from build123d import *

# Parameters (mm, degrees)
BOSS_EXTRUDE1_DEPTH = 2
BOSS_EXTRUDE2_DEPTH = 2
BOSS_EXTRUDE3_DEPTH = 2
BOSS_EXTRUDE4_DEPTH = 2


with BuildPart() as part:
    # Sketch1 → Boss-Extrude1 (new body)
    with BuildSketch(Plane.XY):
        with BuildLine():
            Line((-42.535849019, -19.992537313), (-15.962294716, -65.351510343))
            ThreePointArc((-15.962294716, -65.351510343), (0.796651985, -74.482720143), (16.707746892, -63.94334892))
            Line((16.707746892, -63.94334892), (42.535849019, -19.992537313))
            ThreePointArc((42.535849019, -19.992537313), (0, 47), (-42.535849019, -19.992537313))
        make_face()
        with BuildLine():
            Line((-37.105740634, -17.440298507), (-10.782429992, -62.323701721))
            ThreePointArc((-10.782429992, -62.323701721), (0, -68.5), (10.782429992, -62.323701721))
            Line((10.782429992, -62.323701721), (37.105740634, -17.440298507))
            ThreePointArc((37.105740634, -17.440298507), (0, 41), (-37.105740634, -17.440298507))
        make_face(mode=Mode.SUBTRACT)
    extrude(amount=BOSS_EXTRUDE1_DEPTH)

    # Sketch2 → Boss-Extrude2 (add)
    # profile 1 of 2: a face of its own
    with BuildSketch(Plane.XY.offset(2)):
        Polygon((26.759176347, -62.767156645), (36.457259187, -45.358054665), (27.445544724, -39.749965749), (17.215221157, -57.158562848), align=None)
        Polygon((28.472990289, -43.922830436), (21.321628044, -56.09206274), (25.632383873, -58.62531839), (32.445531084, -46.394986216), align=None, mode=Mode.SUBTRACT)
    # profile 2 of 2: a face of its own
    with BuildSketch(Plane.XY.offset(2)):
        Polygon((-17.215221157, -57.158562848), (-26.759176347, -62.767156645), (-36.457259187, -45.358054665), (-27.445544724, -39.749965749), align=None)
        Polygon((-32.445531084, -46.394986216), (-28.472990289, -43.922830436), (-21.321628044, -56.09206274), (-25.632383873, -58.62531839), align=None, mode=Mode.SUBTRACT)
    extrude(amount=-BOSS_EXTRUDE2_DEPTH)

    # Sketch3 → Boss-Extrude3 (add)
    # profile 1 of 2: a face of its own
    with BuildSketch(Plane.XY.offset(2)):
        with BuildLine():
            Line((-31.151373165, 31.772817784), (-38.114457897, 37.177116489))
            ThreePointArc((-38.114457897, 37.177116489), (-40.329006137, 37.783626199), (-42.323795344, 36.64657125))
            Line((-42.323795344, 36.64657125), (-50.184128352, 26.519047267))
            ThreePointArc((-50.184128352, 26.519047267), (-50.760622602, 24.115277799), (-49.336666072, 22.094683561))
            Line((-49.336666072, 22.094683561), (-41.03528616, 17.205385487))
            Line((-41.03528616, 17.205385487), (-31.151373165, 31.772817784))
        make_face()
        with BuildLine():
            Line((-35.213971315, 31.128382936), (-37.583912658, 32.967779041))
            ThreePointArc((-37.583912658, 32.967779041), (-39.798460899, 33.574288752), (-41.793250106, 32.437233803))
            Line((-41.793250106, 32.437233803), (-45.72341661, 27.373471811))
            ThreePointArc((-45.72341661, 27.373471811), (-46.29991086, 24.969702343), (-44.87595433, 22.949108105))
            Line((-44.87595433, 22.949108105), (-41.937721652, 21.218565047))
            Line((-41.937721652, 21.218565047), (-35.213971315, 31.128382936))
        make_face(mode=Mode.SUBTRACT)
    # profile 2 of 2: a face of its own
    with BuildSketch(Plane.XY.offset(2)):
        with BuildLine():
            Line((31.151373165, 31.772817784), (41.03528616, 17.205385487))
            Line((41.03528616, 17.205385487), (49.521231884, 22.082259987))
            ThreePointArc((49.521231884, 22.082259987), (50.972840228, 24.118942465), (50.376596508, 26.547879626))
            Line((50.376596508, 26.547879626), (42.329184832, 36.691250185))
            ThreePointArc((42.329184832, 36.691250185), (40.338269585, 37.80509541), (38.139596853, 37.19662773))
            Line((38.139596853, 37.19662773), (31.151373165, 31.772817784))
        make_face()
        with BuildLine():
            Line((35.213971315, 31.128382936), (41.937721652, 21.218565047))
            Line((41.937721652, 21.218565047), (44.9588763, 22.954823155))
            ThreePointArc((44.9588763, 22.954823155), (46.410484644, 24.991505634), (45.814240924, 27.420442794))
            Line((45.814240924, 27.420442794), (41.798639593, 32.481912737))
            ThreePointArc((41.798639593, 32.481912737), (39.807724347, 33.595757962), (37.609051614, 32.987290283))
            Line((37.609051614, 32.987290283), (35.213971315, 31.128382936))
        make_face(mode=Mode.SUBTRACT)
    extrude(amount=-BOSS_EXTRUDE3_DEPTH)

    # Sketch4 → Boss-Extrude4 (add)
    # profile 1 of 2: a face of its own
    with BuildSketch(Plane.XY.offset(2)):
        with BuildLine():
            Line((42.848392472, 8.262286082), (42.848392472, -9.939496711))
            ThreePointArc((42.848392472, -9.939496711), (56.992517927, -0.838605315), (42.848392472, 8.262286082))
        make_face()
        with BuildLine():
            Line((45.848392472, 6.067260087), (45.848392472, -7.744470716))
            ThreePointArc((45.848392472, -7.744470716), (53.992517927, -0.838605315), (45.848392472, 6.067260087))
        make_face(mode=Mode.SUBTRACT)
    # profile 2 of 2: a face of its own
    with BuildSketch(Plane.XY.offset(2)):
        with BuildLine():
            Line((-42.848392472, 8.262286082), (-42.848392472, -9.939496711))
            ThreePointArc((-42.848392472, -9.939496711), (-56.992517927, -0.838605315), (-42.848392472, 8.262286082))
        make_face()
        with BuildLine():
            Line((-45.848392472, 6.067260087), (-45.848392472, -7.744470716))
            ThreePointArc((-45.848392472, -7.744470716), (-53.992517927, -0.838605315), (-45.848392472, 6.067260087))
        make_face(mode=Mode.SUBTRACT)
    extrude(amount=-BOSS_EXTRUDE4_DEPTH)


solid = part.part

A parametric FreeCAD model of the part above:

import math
import FreeCAD as App
import Part
import Sketcher
from FreeCAD import Vector
Q = App.Units.Quantity

doc = App.newDocument("Part")
body = doc.addObject("PartDesign::Body", "Body")

# Sketch on XY plane
sketch1 = doc.addObject("Sketcher::SketchObject", "Sketch")
body.addObject(sketch1)
sketch1.AttachmentSupport = (doc.XY_Plane, [""])
sketch1.MapMode = "FlatFace"
sketch1.addGeometry([
    Part.LineSegment(Vector(-42.535849, -19.992537, 0), Vector(-15.962295, -65.35151, 0)),  # 0
    Part.ArcOfCircle(Part.Circle(Vector(0, -56, 0), Vector(0, 0, 1), 18.499881), math.radians(-149.636095), math.radians(-25.427774)),  # 1
    Part.LineSegment(Vector(16.707747, -63.943349, 0), Vector(42.535849, -19.992537, 0)),  # 2
    Part.ArcOfCircle(Part.Circle(Vector(0, 0, 0), Vector(0, 0, 1), 47), math.radians(-25.174284), math.radians(205.174284)),  # 3
    Part.LineSegment(Vector(-10.78243, -62.323702, 0), Vector(-37.105741, -17.440299, 0)),  # 4
    Part.ArcOfCircle(Part.Circle(Vector(0, 0, 0), Vector(0, 0, 1), 41), math.radians(-25.174284), math.radians(205.174284)),  # 5
    Part.LineSegment(Vector(37.105741, -17.440299, 0), Vector(10.78243, -62.323702, 0)),  # 6
    Part.ArcOfCircle(Part.Circle(Vector(0, -56, 0), Vector(0, 0, 1), 12.5), math.radians(-149.609142), math.radians(-30.390858)),  # 7
], False)
sketch1.addConstraint([
    Sketcher.Constraint("Tangent", 0, 2, 1, 1),
    Sketcher.Constraint("Coincident", 1, 2, 2, 1),
    Sketcher.Constraint("Coincident", 2, 2, 3, 1),
    Sketcher.Constraint("Coincident", 3, 2, 0, 1),
    Sketcher.Constraint("Coincident", 4, 2, 5, 2),
    Sketcher.Constraint("Coincident", 5, 1, 6, 1),
    Sketcher.Constraint("Tangent", 6, 2, 7, 2),
    Sketcher.Constraint("Tangent", 7, 1, 4, 1),
    Sketcher.Constraint("Coincident", 3, 3, -1, 1),
    Sketcher.Constraint("Coincident", 5, 3, -1, 1),
    Sketcher.Constraint("Coincident", 7, 3, 1, 3),
    Sketcher.Constraint("Symmetric", 6, 2, 7, 1, -2),
    Sketcher.Constraint("Horizontal", 2, 2, 3, 2),
    Sketcher.Constraint("Radius", 3, Q("47 mm")),
    Sketcher.Constraint("Radius", 5, Q("41 mm")),
    Sketcher.Constraint("Radius", 7, Q("12.5 mm")),
    Sketcher.Constraint("DistanceY", 1, 3, -1, 1, Q("56 mm")),
    Sketcher.Constraint("Radius", 1, Q("18.499881 mm")),
    Sketcher.Constraint("DistanceY", 4, 2, -1, 1, Q("17.440299 mm")),
    Sketcher.Constraint("Distance", 0, Q("52.56986 mm")),
    Sketcher.Constraint("Distance", 2, Q("50.978081 mm")),
])
pad1 = doc.addObject("PartDesign::Pad", "Pad")
body.addObject(pad1)
pad1.Profile = sketch1
pad1.Length = 2

# Sketch on XY plane
sketch2 = doc.addObject("Sketcher::SketchObject", "Sketch001")
body.addObject(sketch2)
sketch2.AttachmentSupport = (doc.XY_Plane, [""])
sketch2.MapMode = "FlatFace"
sketch2.AttachmentOffset = App.Placement(Vector(0, 0, 2), App.Rotation())
sketch2.addGeometry([
    Part.LineSegment(Vector(26.759176, -62.767157, 0), Vector(36.457259, -45.358055, 0)),  # 0
    Part.LineSegment(Vector(36.457259, -45.358055, 0), Vector(27.445545, -39.749966, 0)),  # 1
    Part.LineSegment(Vector(27.445545, -39.749966, 0), Vector(17.215221, -57.158563, 0)),  # 2
    Part.LineSegment(Vector(17.215221, -57.158563, 0), Vector(26.759176, -62.767157, 0)),  # 3
    Part.LineSegment(Vector(21.321628, -56.092063, 0), Vector(28.47299, -43.92283, 0)),  # 4
    Part.LineSegment(Vector(28.47299, -43.92283, 0), Vector(32.445531, -46.394986, 0)),  # 5
    Part.LineSegment(Vector(32.445531, -46.394986, 0), Vector(25.632384, -58.625318, 0)),  # 6
    Part.LineSegment(Vector(25.632384, -58.625318, 0), Vector(21.321628, -56.092063, 0)),  # 7
    Part.LineSegment(Vector(-26.759176, -62.767157, 0), Vector(-17.215221, -57.158563, 0)),  # 8
    Part.LineSegment(Vector(-17.215221, -57.158563, 0), Vector(-27.445545, -39.749966, 0)),  # 9
    Part.LineSegment(Vector(-27.445545, -39.749966, 0), Vector(-36.457259, -45.358055, 0)),  # 10
    Part.LineSegment(Vector(-36.457259, -45.358055, 0), Vector(-26.759176, -62.767157, 0)),  # 11
    Part.LineSegment(Vector(-32.445531, -46.394986, 0), Vector(-28.47299, -43.92283, 0)),  # 12
    Part.LineSegment(Vector(-28.47299, -43.92283, 0), Vector(-21.321628, -56.092063, 0)),  # 13
    Part.LineSegment(Vector(-21.321628, -56.092063, 0), Vector(-25.632384, -58.625318, 0)),  # 14
    Part.LineSegment(Vector(-25.632384, -58.625318, 0), Vector(-32.445531, -46.394986, 0)),  # 15
], False)
sketch2.addConstraint([
    Sketcher.Constraint("Coincident", 0, 2, 1, 1),
    Sketcher.Constraint("Coincident", 1, 2, 2, 1),
    Sketcher.Constraint("Coincident", 2, 2, 3, 1),
    Sketcher.Constraint("Coincident", 3, 2, 0, 1),
    Sketcher.Constraint("Coincident", 4, 2, 5, 1),
    Sketcher.Constraint("Coincident", 5, 2, 6, 1),
    Sketcher.Constraint("Coincident", 6, 2, 7, 1),
    Sketcher.Constraint("Coincident", 7, 2, 4, 1),
    Sketcher.Constraint("Coincident", 8, 2, 9, 1),
    Sketcher.Constraint("Coincident", 9, 2, 10, 1),
    Sketcher.Constraint("Coincident", 10, 2, 11, 1),
    Sketcher.Constraint("Coincident", 11, 2, 8, 1),
    Sketcher.Constraint("Coincident", 12, 2, 13, 1),
    Sketcher.Constraint("Coincident", 13, 2, 14, 1),
    Sketcher.Constraint("Coincident", 14, 2, 15, 1),
    Sketcher.Constraint("Coincident", 15, 2, 12, 1),
    Sketcher.Constraint("Symmetric", 2, 2, 8, 2, -2),
    Sketcher.Constraint("Symmetric", 1, 2, 9, 2, -2),
    Sketcher.Constraint("Symmetric", 0, 2, 10, 2, -2),
    Sketcher.Constraint("Symmetric", 3, 2, 11, 2, -2),
    Sketcher.Constraint("Symmetric", 4, 2, 12, 2, -2),
    Sketcher.Constraint("Symmetric", 7, 2, 13, 2, -2),
    Sketcher.Constraint("Symmetric", 6, 2, 14, 2, -2),
    Sketcher.Constraint("Symmetric", 5, 2, 15, 2, -2),
    Sketcher.Constraint("Perpendicular", 2, 3),
    Sketcher.Constraint("Perpendicular", 3, 4),
    Sketcher.Constraint("Parallel", 1, 5),
    Sketcher.Constraint("Parallel", 0, 6),
    Sketcher.Constraint("Perpendicular", 4, 7),
    Sketcher.Constraint("Distance", 6, Q("14 mm")),
    Sketcher.Constraint("Distance", 7, Q("5 mm")),
    Sketcher.Constraint("DistanceY", 3, 2, 0, 2, Q("17.409102 mm")),
    Sketcher.Constraint("DistanceY", 2, 2, 7, 2, Q("1.0665 mm")),
    Sketcher.Constraint("Distance", 0, Q("19.928112 mm")),
    Sketcher.Constraint("Distance", 1, Q("10.61422 mm")),
    Sketcher.Constraint("DistanceX", -1, 1, 0, 2, Q("36.457259 mm")),
    Sketcher.Constraint("DistanceX", -1, 1, 2, 2, Q("17.215221 mm")),
    Sketcher.Constraint("DistanceX", -1, 1, 4, 2, Q("28.47299 mm")),
    Sketcher.Constraint("DistanceY", 4, 2, -1, 1, Q("43.92283 mm")),
    Sketcher.Constraint("DistanceX", -1, 1, 5, 2, Q("32.445531 mm")),
])
pad2 = doc.addObject("PartDesign::Pad", "Pad001")
body.addObject(pad2)
pad2.Profile = sketch2
pad2.Length = 2
pad2.Reversed = True

# Sketch on XY plane
sketch3 = doc.addObject("Sketcher::SketchObject", "Sketch002")
body.addObject(sketch3)
sketch3.AttachmentSupport = (doc.XY_Plane, [""])
sketch3.MapMode = "FlatFace"
sketch3.AttachmentOffset = App.Placement(Vector(0, 0, 2), App.Rotation())
sketch3.addGeometry([
    Part.LineSegment(Vector(-31.151373, 31.772818, 0), Vector(-38.114458, 37.177116, 0)),  # 0
    Part.ArcOfCircle(Part.Circle(Vector(-39.953854, 34.807175, 0), Vector(0, 0, 1), 3), math.radians(52.183684), math.radians(142.183684)),  # 1
    Part.LineSegment(Vector(-42.323795, 36.646571, 0), Vector(-50.184128, 26.519047, 0)),  # 2
    Part.ArcOfCircle(Part.Circle(Vector(-47.814187, 24.679651, 0), Vector(0, 0, 1), 3), math.radians(142.183684), math.radians(239.503015)),  # 3
    Part.LineSegment(Vector(-49.336666, 22.094684, 0), Vector(-41.035286, 17.205385, 0)),  # 4
    Part.LineSegment(Vector(-41.035286, 17.205385, 0), Vector(-31.151373, 31.772818, 0)),  # 5
    Part.LineSegment(Vector(-37.583913, 32.967779, 0), Vector(-35.213971, 31.128383, 0)),  # 6
    Part.LineSegment(Vector(-35.213971, 31.128383, 0), Vector(-41.937722, 21.218565, 0)),  # 7
    Part.LineSegment(Vector(-41.937722, 21.218565, 0), Vector(-44.875954, 22.949108, 0)),  # 8
    Part.ArcOfCircle(Part.Circle(Vector(-43.353475, 25.534076, 0), Vector(0, 0, 1), 3), math.radians(142.183684), math.radians(239.503015)),  # 9
    Part.LineSegment(Vector(-45.723417, 27.373472, 0), Vector(-41.79325, 32.437234, 0)),  # 10
    Part.ArcOfCircle(Part.Circle(Vector(-39.423309, 30.597838, 0), Vector(0, 0, 1), 3), math.radians(52.183684), math.radians(142.183684)),  # 11
    Part.LineSegment(Vector(31.151373, 31.772818, 0), Vector(41.035286, 17.205385, 0)),  # 12
    Part.LineSegment(Vector(41.035286, 17.205385, 0), Vector(49.521232, 22.08226, 0)),  # 13
    Part.ArcOfCircle(Part.Circle(Vector(48.026405, 24.683316, 0), Vector(0, 0, 1), 3), math.radians(-60.11401), math.radians(38.427311)),  # 14
    Part.LineSegment(Vector(50.376597, 26.54788, 0), Vector(42.329185, 36.69125, 0)),  # 15
    Part.ArcOfCircle(Part.Circle(Vector(39.978993, 34.826686, 0), Vector(0, 0, 1), 3), math.radians(38.427311), math.radians(127.816316)),  # 16
    Part.LineSegment(Vector(38.139597, 37.196628, 0), Vector(31.151373, 31.772818, 0)),  # 17
    Part.LineSegment(Vector(41.937722, 21.218565, 0), Vector(35.213971, 31.128383, 0)),  # 18
    Part.LineSegment(Vector(35.213971, 31.128383, 0), Vector(37.609052, 32.98729, 0)),  # 19
    Part.ArcOfCircle(Part.Circle(Vector(39.448448, 30.617349, 0), Vector(0, 0, 1), 3), math.radians(38.427311), math.radians(127.816316)),  # 20
    Part.LineSegment(Vector(41.79864, 32.481913, 0), Vector(45.814241, 27.420443, 0)),  # 21
    Part.ArcOfCircle(Part.Circle(Vector(43.464049, 25.555879, 0), Vector(0, 0, 1), 3), math.radians(-60.11401), math.radians(38.427311)),  # 22
    Part.LineSegment(Vector(44.958876, 22.954823, 0), Vector(41.937722, 21.218565, 0)),  # 23
], False)
sketch3.addConstraint([
    Sketcher.Constraint("Tangent", 0, 2, 1, 1),
    Sketcher.Constraint("Tangent", 1, 2, 2, 1),
    Sketcher.Constraint("Tangent", 2, 2, 3, 1),
    Sketcher.Constraint("Tangent", 3, 2, 4, 1),
    Sketcher.Constraint("Coincident", 4, 2, 5, 1),
    Sketcher.Constraint("Coincident", 5, 2, 0, 1),
    Sketcher.Constraint("Coincident", 6, 2, 7, 1),
    Sketcher.Constraint("Coincident", 7, 2, 8, 1),
    Sketcher.Constraint("Tangent", 8, 2, 9, 2),
    Sketcher.Constraint("Tangent", 9, 1, 10, 1),
    Sketcher.Constraint("Tangent", 10, 2, 11, 2),
    Sketcher.Constraint("Tangent", 11, 1, 6, 1),
    Sketcher.Constraint("Coincident", 12, 2, 13, 1),
    Sketcher.Constraint("Tangent", 13, 2, 14, 1),
    Sketcher.Constraint("Tangent", 14, 2, 15, 1),
    Sketcher.Constraint("Tangent", 15, 2, 16, 1),
    Sketcher.Constraint("Tangent", 16, 2, 17, 1),
    Sketcher.Constraint("Coincident", 17, 2, 12, 1),
    Sketcher.Constraint("Coincident", 18, 2, 19, 1),
    Sketcher.Constraint("Tangent", 19, 2, 20, 2),
    Sketcher.Constraint("Tangent", 20, 1, 21, 1),
    Sketcher.Constraint("Tangent", 21, 2, 22, 2),
    Sketcher.Constraint("Tangent", 22, 1, 23, 1),
    Sketcher.Constraint("Coincident", 23, 2, 18, 1),
    Sketcher.Constraint("Equal", 1, 3),
    Sketcher.Constraint("Equal", 3, 9),
    Sketcher.Constraint("Equal", 9, 11),
    Sketcher.Constraint("Equal", 11, 14),
    Sketcher.Constraint("Equal", 14, 16),
    Sketcher.Constraint("Equal", 16, 20),
    Sketcher.Constraint("Equal", 20, 22),
    Sketcher.Constraint("Symmetric", 4, 2, 12, 2, -2),
    Sketcher.Constraint("Symmetric", 5, 2, 17, 2, -2),
    Sketcher.Constraint("Symmetric", 6, 2, 18, 2, -2),
    Sketcher.Constraint("Symmetric", 7, 2, 23, 2, -2),
    Sketcher.Constraint("Perpendicular", 0, 2),
    Sketcher.Constraint("Perpendicular", 2, 6),
    Sketcher.Constraint("Parallel", 5, 7),
    Sketcher.Constraint("Parallel", 4, 8),
    Sketcher.Constraint("Perpendicular", 6, 10),
    Sketcher.Constraint("Parallel", 17, 19),
    Sketcher.Constraint("Parallel", 15, 21),
    Sketcher.Constraint("Parallel", 13, 23),
    Sketcher.Constraint("Radius", 1, Q("3 mm")),
    Sketcher.Constraint("Distance", 6, Q("3 mm")),
    Sketcher.Constraint("DistanceY", 22, 3, 14, 2, Q("0.992001 mm")),
    Sketcher.Constraint("Distance", 13, Q("9.787501 mm")),
    Sketcher.Constraint("DistanceY", 9, 3, 1, 3, Q("9.273099 mm")),
    Sketcher.Constraint("DistanceX", 11, 3, 16, 3, Q("79.402302 mm")),
    Sketcher.Constraint("DistanceX", 1, 3, 20, 3, Q("79.402302 mm")),
    Sketcher.Constraint("DistanceX", 20, 3, 22, 3, Q("4.015601 mm")),
    Sketcher.Constraint("DistanceY", 4, 2, 3, 2, Q("4.889298 mm")),
    Sketcher.Constraint("DistanceX", 3, 3, 4, 2, Q("6.778901 mm")),
    Sketcher.Constraint("DistanceY", 5, 2, 0, 2, Q("5.404299 mm")),
    Sketcher.Constraint("DistanceX", 6, 2, 5, 2, Q("4.062598 mm")),
    Sketcher.Constraint("DistanceY", 12, 2, 16, 3, Q("17.621301 mm")),
    Sketcher.Constraint("DistanceY", 20, 3, 15, 2, Q("6.073901 mm")),
    Sketcher.Constraint("Distance", 0, Q("8.814249 mm")),
    Sketcher.Constraint("Distance", 5, Q("17.604029 mm")),
    Sketcher.Constraint("DistanceY", -1, 1, 3, 3, Q("24.679651 mm")),
])
pad3 = doc.addObject("PartDesign::Pad", "Pad002")
body.addObject(pad3)
pad3.Profile = sketch3
pad3.Length = 2
pad3.Reversed = True

# Sketch on XY plane
sketch4 = doc.addObject("Sketcher::SketchObject", "Sketch003")
body.addObject(sketch4)
sketch4.AttachmentSupport = (doc.XY_Plane, [""])
sketch4.MapMode = "FlatFace"
sketch4.AttachmentOffset = App.Placement(Vector(0, 0, 2), App.Rotation())
sketch4.addGeometry([
    Part.LineSegment(Vector(42.848392, 8.262286, 0), Vector(42.848392, -9.939497, 0)),  # 0
    Part.ArcOfCircle(Part.Circle(Vector(46.992518, -0.838605, 0), Vector(0, 0, 1), 10), math.radians(-114.482327), math.radians(114.482327)),  # 1
    Part.LineSegment(Vector(45.848392, -7.744471, 0), Vector(45.848392, 6.06726, 0)),  # 2
    Part.ArcOfCircle(Part.Circle(Vector(46.992518, -0.838605, 0), Vector(0, 0, 1), 7), math.radians(-99.407), math.radians(99.407)),  # 3
    Part.LineSegment(Vector(-42.848392, -9.939497, 0), Vector(-42.848392, 8.262286, 0)),  # 4
    Part.ArcOfCircle(Part.Circle(Vector(-46.992518, -0.838605, 0), Vector(0, 0, 1), 10), math.radians(65.517673), math.radians(294.482327)),  # 5
    Part.LineSegment(Vector(-45.848392, 6.06726, 0), Vector(-45.848392, -7.744471, 0)),  # 6
    Part.ArcOfCircle(Part.Circle(Vector(-46.992518, -0.838605, 0), Vector(0, 0, 1), 7), math.radians(80.593), math.radians(279.407)),  # 7
], False)
sketch4.addConstraint([
    Sketcher.Constraint("Coincident", 0, 1, 1, 2),
    Sketcher.Constraint("Coincident", 1, 1, 0, 2),
    Sketcher.Constraint("Coincident", 2, 1, 3, 1),
    Sketcher.Constraint("Coincident", 3, 2, 2, 2),
    Sketcher.Constraint("Coincident", 4, 1, 5, 2),
    Sketcher.Constraint("Coincident", 5, 1, 4, 2),
    Sketcher.Constraint("Coincident", 6, 1, 7, 1),
    Sketcher.Constraint("Coincident", 7, 2, 6, 2),
    Sketcher.Constraint("Vertical", 0),
    Sketcher.Constraint("Vertical", 2),
    Sketcher.Constraint("Vertical", 4),
    Sketcher.Constraint("Vertical", 6),
    Sketcher.Constraint("Coincident", 3, 3, 1, 3),
    Sketcher.Constraint("Coincident", 7, 3, 5, 3),
    Sketcher.Constraint("Equal", 1, 5),
    Sketcher.Constraint("Equal", 3, 7),
    Sketcher.Constraint("Symmetric", 1, 3, 5, 3, -2),
    Sketcher.Constraint("Horizontal", 1, 1, 4, 1),
    Sketcher.Constraint("Horizontal", 3, 2, 6, 1),
    Sketcher.Constraint("Radius", 1, Q("10 mm")),
    Sketcher.Constraint("Radius", 3, Q("7 mm")),
    Sketcher.Constraint("DistanceX", 1, 1, 2, 1, Q("3 mm")),
    Sketcher.Constraint("DistanceY", 2, 1, 2, 2, Q("13.811731 mm")),
    Sketcher.Constraint("DistanceY", 2, 1, -1, 1, Q("7.744471 mm")),
    Sketcher.Constraint("DistanceX", 5, 3, 0, 1, Q("89.84091 mm")),
])
pad4 = doc.addObject("PartDesign::Pad", "Pad003")
body.addObject(pad4)
pad4.Profile = sketch4
pad4.Length = 2
pad4.Reversed = True

doc.recompute()
